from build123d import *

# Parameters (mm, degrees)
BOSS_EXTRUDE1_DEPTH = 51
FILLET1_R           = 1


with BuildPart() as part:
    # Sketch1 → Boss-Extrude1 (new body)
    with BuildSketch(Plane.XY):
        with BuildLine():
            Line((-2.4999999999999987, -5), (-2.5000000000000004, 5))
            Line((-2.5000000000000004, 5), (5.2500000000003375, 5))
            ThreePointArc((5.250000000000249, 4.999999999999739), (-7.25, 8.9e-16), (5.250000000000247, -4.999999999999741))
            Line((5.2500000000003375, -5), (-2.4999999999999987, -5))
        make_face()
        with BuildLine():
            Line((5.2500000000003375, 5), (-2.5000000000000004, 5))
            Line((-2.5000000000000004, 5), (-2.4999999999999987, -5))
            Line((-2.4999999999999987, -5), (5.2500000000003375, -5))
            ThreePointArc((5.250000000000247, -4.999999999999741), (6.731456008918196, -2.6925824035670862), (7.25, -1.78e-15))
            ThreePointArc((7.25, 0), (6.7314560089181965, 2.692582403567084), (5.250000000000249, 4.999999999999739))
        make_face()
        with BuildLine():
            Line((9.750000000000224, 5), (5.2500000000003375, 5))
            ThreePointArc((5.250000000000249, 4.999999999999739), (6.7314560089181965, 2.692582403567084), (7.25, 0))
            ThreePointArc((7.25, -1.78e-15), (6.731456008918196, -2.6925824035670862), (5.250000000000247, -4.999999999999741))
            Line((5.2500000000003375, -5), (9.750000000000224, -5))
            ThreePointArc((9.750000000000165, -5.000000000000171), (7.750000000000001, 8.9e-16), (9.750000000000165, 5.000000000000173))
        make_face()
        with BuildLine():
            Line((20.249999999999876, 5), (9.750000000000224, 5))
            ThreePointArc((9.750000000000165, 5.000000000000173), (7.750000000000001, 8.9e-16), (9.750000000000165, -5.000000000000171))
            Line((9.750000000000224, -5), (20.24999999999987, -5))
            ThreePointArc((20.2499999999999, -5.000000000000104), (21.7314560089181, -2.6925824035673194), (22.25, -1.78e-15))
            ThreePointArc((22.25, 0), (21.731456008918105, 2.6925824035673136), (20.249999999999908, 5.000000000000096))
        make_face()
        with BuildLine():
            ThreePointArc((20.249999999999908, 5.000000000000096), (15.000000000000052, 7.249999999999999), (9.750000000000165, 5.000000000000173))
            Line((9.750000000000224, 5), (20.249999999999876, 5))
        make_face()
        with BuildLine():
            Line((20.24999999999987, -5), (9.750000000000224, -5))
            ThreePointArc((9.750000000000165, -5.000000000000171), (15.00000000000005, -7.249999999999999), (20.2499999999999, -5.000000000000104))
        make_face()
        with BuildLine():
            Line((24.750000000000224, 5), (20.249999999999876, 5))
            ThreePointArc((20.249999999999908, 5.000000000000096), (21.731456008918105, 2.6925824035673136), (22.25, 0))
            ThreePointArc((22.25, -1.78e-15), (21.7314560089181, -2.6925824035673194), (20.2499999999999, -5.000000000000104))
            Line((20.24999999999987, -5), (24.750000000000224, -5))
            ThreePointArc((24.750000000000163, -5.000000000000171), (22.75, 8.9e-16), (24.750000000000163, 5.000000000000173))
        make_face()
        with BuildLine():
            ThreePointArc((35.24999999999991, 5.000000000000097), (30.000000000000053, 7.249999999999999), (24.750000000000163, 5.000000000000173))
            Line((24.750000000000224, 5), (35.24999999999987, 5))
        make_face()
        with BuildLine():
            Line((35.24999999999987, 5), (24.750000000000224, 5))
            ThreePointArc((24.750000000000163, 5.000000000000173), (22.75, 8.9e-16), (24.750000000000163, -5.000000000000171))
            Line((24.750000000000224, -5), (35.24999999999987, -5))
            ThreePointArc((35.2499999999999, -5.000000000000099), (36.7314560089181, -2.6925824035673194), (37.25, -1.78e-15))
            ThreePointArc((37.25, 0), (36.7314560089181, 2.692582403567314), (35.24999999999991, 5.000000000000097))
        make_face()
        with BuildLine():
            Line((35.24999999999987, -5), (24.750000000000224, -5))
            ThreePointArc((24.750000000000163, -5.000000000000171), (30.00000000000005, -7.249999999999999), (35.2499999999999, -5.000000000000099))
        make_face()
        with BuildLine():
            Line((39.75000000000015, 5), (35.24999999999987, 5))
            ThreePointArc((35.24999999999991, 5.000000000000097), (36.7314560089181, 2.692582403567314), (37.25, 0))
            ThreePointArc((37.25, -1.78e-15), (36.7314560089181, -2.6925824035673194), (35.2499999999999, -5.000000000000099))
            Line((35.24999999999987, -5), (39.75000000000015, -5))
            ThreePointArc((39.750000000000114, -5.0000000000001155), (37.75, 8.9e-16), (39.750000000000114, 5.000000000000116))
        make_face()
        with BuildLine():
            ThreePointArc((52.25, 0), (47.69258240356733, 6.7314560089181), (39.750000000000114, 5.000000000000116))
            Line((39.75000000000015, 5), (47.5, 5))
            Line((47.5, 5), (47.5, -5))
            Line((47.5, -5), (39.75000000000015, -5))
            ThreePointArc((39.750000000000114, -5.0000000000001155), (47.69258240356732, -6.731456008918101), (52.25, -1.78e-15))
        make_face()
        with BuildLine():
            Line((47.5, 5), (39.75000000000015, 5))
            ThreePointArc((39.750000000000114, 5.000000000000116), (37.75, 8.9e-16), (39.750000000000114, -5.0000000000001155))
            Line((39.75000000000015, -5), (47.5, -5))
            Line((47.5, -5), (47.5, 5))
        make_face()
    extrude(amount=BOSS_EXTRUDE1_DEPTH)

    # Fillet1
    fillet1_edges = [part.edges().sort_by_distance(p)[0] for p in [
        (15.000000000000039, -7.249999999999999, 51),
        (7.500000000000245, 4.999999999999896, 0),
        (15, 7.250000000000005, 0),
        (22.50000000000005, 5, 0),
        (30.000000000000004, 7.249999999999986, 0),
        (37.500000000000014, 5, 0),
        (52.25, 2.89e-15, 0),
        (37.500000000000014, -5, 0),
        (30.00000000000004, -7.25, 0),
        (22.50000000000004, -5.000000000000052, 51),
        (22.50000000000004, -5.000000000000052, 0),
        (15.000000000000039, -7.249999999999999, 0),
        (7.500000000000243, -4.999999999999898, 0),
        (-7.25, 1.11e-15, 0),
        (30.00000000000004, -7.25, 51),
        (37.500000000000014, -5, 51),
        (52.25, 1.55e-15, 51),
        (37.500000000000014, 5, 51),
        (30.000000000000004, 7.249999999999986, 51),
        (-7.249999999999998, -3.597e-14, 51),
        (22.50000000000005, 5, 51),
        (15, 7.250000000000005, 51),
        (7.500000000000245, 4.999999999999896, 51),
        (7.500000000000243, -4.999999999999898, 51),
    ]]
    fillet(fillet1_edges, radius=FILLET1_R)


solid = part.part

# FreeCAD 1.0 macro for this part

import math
import FreeCAD as App
import Part
import Sketcher


def edges_at(feature, points):
    """Names of the edges that pass closest to the given points."""
    edges = feature.Shape.Edges
    near = lambda p: min(range(len(edges)), key=lambda i: edges[i].distToShape(Part.Vertex(*p))[0])
    return sorted({f"Edge{near(p) + 1}" for p in points})

doc = App.newDocument("Part")
params = doc.addObject("Spreadsheet::Sheet", "Params")
for row, (alias, value) in enumerate([
    ("sketch1_radius", "7.25 mm"),
    ("sketch1_width", "4.5 mm"),
    ("pad1_length", "51 mm"),
    ("fillet_radius", "1 mm"),
], start=1):
    params.set(f"A{row}", alias)
    params.set(f"B{row}", "=" + value)
    params.setAlias(f"B{row}", alias)

body = doc.addObject("PartDesign::Body", "Body")

# Sketch on XY plane
sketch1 = doc.addObject("Sketcher::SketchObject", "Sketch")
body.addObject(sketch1)
sketch1.AttachmentSupport = (doc.XY_Plane, [""])
sketch1.MapMode = "FlatFace"
sketch1.addGeometry([
    Part.ArcOfCircle(Part.Circle(App.Vector(15, 0, 0), App.Vector(0, 0, 1), 7.2), math.radians(44), math.radians(136)),  # 0
    Part.LineSegment(App.Vector(9.8, 5, 0), App.Vector(5.2, 5, 0)),  # 1
    Part.ArcOfCircle(Part.Circle(App.Vector(0, 0, 0), App.Vector(0, 0, 1), 7.2), math.radians(44), math.radians(316)),  # 2
    Part.LineSegment(App.Vector(5.2, -5, 0), App.Vector(9.8, -5, 0)),  # 3
    Part.ArcOfCircle(Part.Circle(App.Vector(15, 0, 0), App.Vector(0, 0, 1), 7.2), math.radians(-136), math.radians(-44)),  # 4
    Part.LineSegment(App.Vector(20.2, -5, 0), App.Vector(24.8, -5, 0)),  # 5
    Part.ArcOfCircle(Part.Circle(App.Vector(30, 0, 0), App.Vector(0, 0, 1), 7.2), math.radians(-136), math.radians(-44)),  # 6
    Part.LineSegment(App.Vector(35.2, -5, 0), App.Vector(39.8, -5, 0)),  # 7
    Part.ArcOfCircle(Part.Circle(App.Vector(45, 0, 0), App.Vector(0, 0, 1), 7.2), math.radians(-136), math.radians(136)),  # 8
    Part.LineSegment(App.Vector(39.8, 5, 0), App.Vector(35.2, 5, 0)),  # 9
    Part.ArcOfCircle(Part.Circle(App.Vector(30, 0, 0), App.Vector(0, 0, 1), 7.2), math.radians(44), math.radians(136)),  # 10
    Part.LineSegment(App.Vector(24.8, 5, 0), App.Vector(20.2, 5, 0)),  # 11
], False)
sketch1.addConstraint([
    Sketcher.Constraint("Coincident", 0, 2, 1, 1),
    Sketcher.Constraint("Coincident", 1, 2, 2, 1),
    Sketcher.Constraint("Coincident", 2, 2, 3, 1),
    Sketcher.Constraint("Coincident", 3, 2, 4, 1),
    Sketcher.Constraint("Coincident", 4, 2, 5, 1),
    Sketcher.Constraint("Coincident", 5, 2, 6, 1),
    Sketcher.Constraint("Coincident", 6, 2, 7, 1),
    Sketcher.Constraint("Coincident", 7, 2, 8, 1),
    Sketcher.Constraint("Coincident", 8, 2, 9, 1),
    Sketcher.Constraint("Coincident", 9, 2, 10, 1),
    Sketcher.Constraint("Coincident", 10, 2, 11, 1),
    Sketcher.Constraint("Coincident", 11, 2, 0, 1),
    Sketcher.Constraint("Horizontal", 1),
    Sketcher.Constraint("Horizontal", 3),
    Sketcher.Constraint("Horizontal", 5),
    Sketcher.Constraint("Horizontal", 7),
    Sketcher.Constraint("Horizontal", 9),
    Sketcher.Constraint("Horizontal", 11),
    Sketcher.Constraint("Coincident", 2, 3, -1, 1),
    Sketcher.Constraint("Coincident", 4, 3, 0, 3),
    Sketcher.Constraint("Coincident", 10, 3, 6, 3),
    Sketcher.Constraint("Equal", 0, 2),
    Sketcher.Constraint("Equal", 2, 4),
    Sketcher.Constraint("Equal", 4, 6),
    Sketcher.Constraint("Equal", 6, 8),
    Sketcher.Constraint("Equal", 8, 10),
    Sketcher.Constraint("Symmetric", 0, 2, 3, 2, -1),
    Sketcher.Constraint("Symmetric", 7, 2, 8, 2, -1),
    Sketcher.Constraint("Symmetric", 5, 2, 10, 2, -1),
    Sketcher.Constraint("Horizontal", 3, 2, 4, 2),
    Sketcher.Constraint("Horizontal", 5, 2, 6, 2),
    Sketcher.Constraint("Equal", 3, 5),
    Sketcher.Constraint("Equal", 5, 7),
    Sketcher.Constraint("Radius", 0, 7.25),
    Sketcher.Constraint("DistanceX", 1, 2, 1, 1, 4.5),
    Sketcher.Constraint("DistanceX", -1, 1, 0, 3, 15.0),
])
sketch1.setExpression("Constraints[33]", "Params.sketch1_radius")
sketch1.setExpression("Constraints[34]", "Params.sketch1_width")
pad1 = doc.addObject("PartDesign::Pad", "Pad")
body.addObject(pad1)
pad1.Profile = sketch1
pad1.setExpression("Length", "Params.pad1_length")
doc.recompute()

fillet = doc.addObject("PartDesign::Fillet", "Fillet")
body.addObject(fillet)
fillet.Base = (pad1, edges_at(pad1, [
    (15, -7.25, 51),
    (7.5, 5, 0),
    (15, 7.25, 0),
    (22.5, 5, 0),
    (30, 7.25, 0),
    (37.5, 5, 0),
    (52.25, 0, 0),
    (37.5, -5, 0),
    (30, -7.25, 0),
    (22.5, -5, 51),
    (22.5, -5, 0),
    (15, -7.25, 0),
    (7.5, -5, 0),
    (-7.25, 0, 0),
    (30, -7.25, 51),
    (37.5, -5, 51),
    (52.25, 0, 51),
    (37.5, 5, 51),
    (30, 7.25, 51),
    (-7.25, 0, 51),
    (22.5, 5, 51),
    (15, 7.25, 51),
    (7.5, 5, 51),
    (7.5, -5, 51),
]))
fillet.setExpression("Radius", "Params.fillet_radius")

doc.recompute()
